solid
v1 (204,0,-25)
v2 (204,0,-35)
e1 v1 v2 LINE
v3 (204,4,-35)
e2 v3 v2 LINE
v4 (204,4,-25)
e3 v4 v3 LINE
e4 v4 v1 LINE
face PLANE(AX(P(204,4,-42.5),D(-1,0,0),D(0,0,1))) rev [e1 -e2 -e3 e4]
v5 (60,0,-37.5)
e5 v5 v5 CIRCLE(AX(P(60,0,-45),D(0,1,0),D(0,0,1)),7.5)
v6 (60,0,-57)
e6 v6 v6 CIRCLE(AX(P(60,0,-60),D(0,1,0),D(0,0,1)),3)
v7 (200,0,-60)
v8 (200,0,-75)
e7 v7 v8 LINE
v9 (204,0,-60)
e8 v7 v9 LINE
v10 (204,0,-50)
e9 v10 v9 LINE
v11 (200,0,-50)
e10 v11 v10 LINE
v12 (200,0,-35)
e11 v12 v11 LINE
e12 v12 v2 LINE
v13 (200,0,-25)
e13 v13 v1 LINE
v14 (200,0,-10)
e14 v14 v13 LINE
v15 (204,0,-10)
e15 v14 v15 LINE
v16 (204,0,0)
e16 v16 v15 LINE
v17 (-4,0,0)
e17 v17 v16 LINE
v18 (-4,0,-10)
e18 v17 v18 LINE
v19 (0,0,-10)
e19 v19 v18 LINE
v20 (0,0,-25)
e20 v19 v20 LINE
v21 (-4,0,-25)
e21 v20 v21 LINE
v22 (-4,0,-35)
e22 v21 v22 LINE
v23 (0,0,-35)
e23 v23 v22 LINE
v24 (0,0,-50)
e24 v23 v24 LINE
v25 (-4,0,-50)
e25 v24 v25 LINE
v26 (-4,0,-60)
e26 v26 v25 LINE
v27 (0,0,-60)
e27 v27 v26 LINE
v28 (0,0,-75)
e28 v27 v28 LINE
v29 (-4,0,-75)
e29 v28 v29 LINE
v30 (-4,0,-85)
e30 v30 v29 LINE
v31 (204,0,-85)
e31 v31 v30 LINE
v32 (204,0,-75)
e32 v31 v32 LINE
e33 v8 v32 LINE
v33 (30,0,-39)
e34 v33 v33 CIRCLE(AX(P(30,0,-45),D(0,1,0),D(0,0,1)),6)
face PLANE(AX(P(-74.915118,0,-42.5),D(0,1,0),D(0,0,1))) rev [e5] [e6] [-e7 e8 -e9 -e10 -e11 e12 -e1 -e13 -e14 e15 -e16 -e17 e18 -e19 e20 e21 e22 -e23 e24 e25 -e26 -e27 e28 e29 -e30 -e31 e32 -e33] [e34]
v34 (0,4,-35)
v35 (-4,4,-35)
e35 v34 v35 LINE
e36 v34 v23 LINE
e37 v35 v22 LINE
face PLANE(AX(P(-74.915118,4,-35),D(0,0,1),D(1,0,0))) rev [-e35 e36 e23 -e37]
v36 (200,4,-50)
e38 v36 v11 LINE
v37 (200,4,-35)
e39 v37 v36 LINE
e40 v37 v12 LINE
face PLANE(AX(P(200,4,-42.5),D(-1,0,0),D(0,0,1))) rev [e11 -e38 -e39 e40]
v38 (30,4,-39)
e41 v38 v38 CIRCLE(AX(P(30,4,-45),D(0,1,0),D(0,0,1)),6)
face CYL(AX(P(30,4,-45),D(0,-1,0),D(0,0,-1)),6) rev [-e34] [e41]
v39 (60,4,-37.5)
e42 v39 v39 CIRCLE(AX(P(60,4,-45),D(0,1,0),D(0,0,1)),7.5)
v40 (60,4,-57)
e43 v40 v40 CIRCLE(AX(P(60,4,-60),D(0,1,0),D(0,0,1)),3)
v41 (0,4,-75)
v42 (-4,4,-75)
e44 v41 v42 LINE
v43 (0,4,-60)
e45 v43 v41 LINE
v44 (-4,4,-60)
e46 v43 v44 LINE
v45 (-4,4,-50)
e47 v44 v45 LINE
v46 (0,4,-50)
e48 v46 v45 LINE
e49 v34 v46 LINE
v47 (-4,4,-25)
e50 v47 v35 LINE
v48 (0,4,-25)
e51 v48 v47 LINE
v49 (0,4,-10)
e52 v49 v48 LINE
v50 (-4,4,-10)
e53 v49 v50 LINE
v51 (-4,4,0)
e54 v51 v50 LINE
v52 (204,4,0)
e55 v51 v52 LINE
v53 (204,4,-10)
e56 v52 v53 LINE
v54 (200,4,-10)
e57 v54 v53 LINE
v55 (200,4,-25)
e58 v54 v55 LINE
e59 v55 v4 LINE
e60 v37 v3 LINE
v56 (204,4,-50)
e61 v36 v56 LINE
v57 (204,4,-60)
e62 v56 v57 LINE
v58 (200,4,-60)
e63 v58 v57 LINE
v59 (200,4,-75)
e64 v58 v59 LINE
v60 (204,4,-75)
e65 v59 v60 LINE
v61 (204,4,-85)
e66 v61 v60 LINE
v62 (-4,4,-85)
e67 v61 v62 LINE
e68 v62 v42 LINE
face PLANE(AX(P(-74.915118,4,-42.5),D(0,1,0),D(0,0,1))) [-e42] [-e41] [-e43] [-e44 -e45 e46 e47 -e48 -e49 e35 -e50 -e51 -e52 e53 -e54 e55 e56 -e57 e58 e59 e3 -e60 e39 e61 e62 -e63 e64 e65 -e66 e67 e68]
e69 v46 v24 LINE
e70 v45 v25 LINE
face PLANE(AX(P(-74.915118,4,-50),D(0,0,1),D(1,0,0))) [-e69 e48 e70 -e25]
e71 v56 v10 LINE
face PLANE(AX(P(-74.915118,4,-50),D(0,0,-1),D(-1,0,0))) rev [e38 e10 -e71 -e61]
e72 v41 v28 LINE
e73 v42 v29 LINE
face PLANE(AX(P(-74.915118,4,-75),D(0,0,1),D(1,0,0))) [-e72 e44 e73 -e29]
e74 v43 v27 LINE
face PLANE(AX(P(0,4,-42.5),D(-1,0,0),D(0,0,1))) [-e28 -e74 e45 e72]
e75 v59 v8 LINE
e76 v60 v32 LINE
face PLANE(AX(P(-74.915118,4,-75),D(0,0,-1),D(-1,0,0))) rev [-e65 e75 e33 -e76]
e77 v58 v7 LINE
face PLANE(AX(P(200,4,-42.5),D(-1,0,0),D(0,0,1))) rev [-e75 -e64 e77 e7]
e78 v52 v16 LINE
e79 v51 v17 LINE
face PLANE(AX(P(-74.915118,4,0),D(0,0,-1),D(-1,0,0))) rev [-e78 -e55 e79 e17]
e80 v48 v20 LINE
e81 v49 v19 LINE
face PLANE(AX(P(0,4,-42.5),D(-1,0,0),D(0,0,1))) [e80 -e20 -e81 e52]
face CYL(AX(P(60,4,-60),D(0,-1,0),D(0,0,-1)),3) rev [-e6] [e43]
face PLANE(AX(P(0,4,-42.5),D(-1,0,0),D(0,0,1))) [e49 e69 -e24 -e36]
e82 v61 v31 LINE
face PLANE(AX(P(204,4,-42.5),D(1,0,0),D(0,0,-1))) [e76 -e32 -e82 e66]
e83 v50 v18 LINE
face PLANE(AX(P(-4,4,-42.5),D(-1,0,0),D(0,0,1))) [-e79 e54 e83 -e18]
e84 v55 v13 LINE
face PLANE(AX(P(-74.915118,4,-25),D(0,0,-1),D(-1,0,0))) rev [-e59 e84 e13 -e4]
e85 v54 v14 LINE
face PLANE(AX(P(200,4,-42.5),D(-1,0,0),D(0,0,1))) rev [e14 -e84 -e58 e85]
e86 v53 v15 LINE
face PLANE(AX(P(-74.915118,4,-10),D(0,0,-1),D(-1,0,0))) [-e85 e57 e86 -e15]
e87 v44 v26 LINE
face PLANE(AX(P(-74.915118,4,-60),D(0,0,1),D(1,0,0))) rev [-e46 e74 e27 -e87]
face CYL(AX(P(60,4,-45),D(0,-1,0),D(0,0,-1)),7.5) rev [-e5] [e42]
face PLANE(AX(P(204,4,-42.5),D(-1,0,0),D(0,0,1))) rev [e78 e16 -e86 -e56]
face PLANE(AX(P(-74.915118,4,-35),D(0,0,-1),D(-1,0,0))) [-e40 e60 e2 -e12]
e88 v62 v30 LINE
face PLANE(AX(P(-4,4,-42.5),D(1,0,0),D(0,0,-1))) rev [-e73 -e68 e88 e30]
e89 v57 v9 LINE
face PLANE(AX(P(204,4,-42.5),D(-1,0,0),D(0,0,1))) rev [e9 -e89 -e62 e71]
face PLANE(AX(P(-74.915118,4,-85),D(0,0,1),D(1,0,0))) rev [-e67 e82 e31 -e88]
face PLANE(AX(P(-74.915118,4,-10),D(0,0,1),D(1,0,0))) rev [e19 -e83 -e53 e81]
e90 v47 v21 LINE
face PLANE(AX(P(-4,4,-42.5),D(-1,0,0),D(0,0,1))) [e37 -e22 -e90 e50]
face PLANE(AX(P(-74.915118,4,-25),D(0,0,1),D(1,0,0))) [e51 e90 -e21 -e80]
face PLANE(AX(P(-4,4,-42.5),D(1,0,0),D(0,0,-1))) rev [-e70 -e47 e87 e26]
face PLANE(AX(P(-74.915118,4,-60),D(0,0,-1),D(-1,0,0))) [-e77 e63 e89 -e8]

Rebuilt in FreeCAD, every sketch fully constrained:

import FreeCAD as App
import Part
import Sketcher
Q = App.Units.Quantity

doc = App.newDocument("Part")
body = doc.addObject("PartDesign::Body", "Body")

sketch1 = doc.addObject("Sketcher::SketchObject", "Sketch")
body.addObject(sketch1)
sketch1.AttachmentSupport = (doc.XZ_Plane, [""])
sketch1.MapMode = "FlatFace"
sketch1.addGeometry(Part.LineSegment(App.Vector(-4, -85, 0), App.Vector(-4, -75, 0)), False)
sketch1.addGeometry(Part.LineSegment(App.Vector(-4, -75, 0), App.Vector(0, -75, 0)), False)
sketch1.addGeometry(Part.LineSegment(App.Vector(0, -75, 0), App.Vector(0, -60, 0)), False)
sketch1.addGeometry(Part.LineSegment(App.Vector(0, -60, 0), App.Vector(-4, -60, 0)), False)
sketch1.addGeometry(Part.LineSegment(App.Vector(-4, -60, 0), App.Vector(-4, -50, 0)), False)
sketch1.addGeometry(Part.LineSegment(App.Vector(-4, -50, 0), App.Vector(0, -50, 0)), False)
sketch1.addGeometry(Part.LineSegment(App.Vector(0, -50, 0), App.Vector(0, -35, 0)), False)
sketch1.addGeometry(Part.LineSegment(App.Vector(0, -35, 0), App.Vector(-4, -35, 0)), False)
sketch1.addGeometry(Part.LineSegment(App.Vector(-4, -35, 0), App.Vector(-4, -25, 0)), False)
sketch1.addGeometry(Part.LineSegment(App.Vector(-4, -25, 0), App.Vector(0, -25, 0)), False)
sketch1.addGeometry(Part.LineSegment(App.Vector(0, -25, 0), App.Vector(0, -10, 0)), False)
sketch1.addGeometry(Part.LineSegment(App.Vector(0, -10, 0), App.Vector(-4, -10, 0)), False)
sketch1.addGeometry(Part.LineSegment(App.Vector(-4, -10, 0), App.Vector(-4, 0, 0)), False)
sketch1.addGeometry(Part.LineSegment(App.Vector(-4, 0, 0), App.Vector(204, 0, 0)), False)
sketch1.addGeometry(Part.LineSegment(App.Vector(204, 0, 0), App.Vector(204, -10, 0)), False)
sketch1.addGeometry(Part.LineSegment(App.Vector(204, -10, 0), App.Vector(200, -10, 0)), False)
sketch1.addGeometry(Part.LineSegment(App.Vector(200, -10, 0), App.Vector(200, -25, 0)), False)
sketch1.addGeometry(Part.LineSegment(App.Vector(200, -25, 0), App.Vector(204, -25, 0)), False)
sketch1.addGeometry(Part.LineSegment(App.Vector(204, -25, 0), App.Vector(204, -35, 0)), False)
sketch1.addGeometry(Part.LineSegment(App.Vector(204, -35, 0), App.Vector(200, -35, 0)), False)
sketch1.addGeometry(Part.LineSegment(App.Vector(200, -35, 0), App.Vector(200, -50, 0)), False)
sketch1.addGeometry(Part.LineSegment(App.Vector(200, -50, 0), App.Vector(204, -50, 0)), False)
sketch1.addGeometry(Part.LineSegment(App.Vector(204, -50, 0), App.Vector(204, -60, 0)), False)
sketch1.addGeometry(Part.LineSegment(App.Vector(204, -60, 0), App.Vector(200, -60, 0)), False)
sketch1.addGeometry(Part.LineSegment(App.Vector(200, -60, 0), App.Vector(200, -75, 0)), False)
sketch1.addGeometry(Part.LineSegment(App.Vector(200, -75, 0), App.Vector(204, -75, 0)), False)
sketch1.addGeometry(Part.LineSegment(App.Vector(204, -75, 0), App.Vector(204, -85, 0)), False)
sketch1.addGeometry(Part.LineSegment(App.Vector(204, -85, 0), App.Vector(-4, -85, 0)), False)
sketch1.addGeometry(Part.Circle(App.Vector(60, -60, 0), App.Vector(0, 0, 1), 3), False)
sketch1.addGeometry(Part.Circle(App.Vector(30, -45, 0), App.Vector(0, 0, 1), 6), False)
sketch1.addGeometry(Part.Circle(App.Vector(60, -45, 0), App.Vector(0, 0, 1), 7.5), False)
sketch1.addConstraint(Sketcher.Constraint("Coincident", 0, 2, 1, 1))
sketch1.addConstraint(Sketcher.Constraint("Coincident", 1, 2, 2, 1))
sketch1.addConstraint(Sketcher.Constraint("Coincident", 2, 2, 3, 1))
sketch1.addConstraint(Sketcher.Constraint("Coincident", 3, 2, 4, 1))
sketch1.addConstraint(Sketcher.Constraint("Coincident", 4, 2, 5, 1))
sketch1.addConstraint(Sketcher.Constraint("Coincident", 5, 2, 6, 1))
sketch1.addConstraint(Sketcher.Constraint("Coincident", 6, 2, 7, 1))
sketch1.addConstraint(Sketcher.Constraint("Coincident", 7, 2, 8, 1))
sketch1.addConstraint(Sketcher.Constraint("Coincident", 8, 2, 9, 1))
sketch1.addConstraint(Sketcher.Constraint("Coincident", 9, 2, 10, 1))
sketch1.addConstraint(Sketcher.Constraint("Coincident", 10, 2, 11, 1))
sketch1.addConstraint(Sketcher.Constraint("Coincident", 11, 2, 12, 1))
sketch1.addConstraint(Sketcher.Constraint("Coincident", 12, 2, 13, 1))
sketch1.addConstraint(Sketcher.Constraint("Coincident", 13, 2, 14, 1))
sketch1.addConstraint(Sketcher.Constraint("Coincident", 14, 2, 15, 1))
sketch1.addConstraint(Sketcher.Constraint("Coincident", 15, 2, 16, 1))
sketch1.addConstraint(Sketcher.Constraint("Coincident", 16, 2, 17, 1))
sketch1.addConstraint(Sketcher.Constraint("Coincident", 17, 2, 18, 1))
sketch1.addConstraint(Sketcher.Constraint("Coincident", 18, 2, 19, 1))
sketch1.addConstraint(Sketcher.Constraint("Coincident", 19, 2, 20, 1))
sketch1.addConstraint(Sketcher.Constraint("Coincident", 20, 2, 21, 1))
sketch1.addConstraint(Sketcher.Constraint("Coincident", 21, 2, 22, 1))
sketch1.addConstraint(Sketcher.Constraint("Coincident", 22, 2, 23, 1))
sketch1.addConstraint(Sketcher.Constraint("Coincident", 23, 2, 24, 1))
sketch1.addConstraint(Sketcher.Constraint("Coincident", 24, 2, 25, 1))
sketch1.addConstraint(Sketcher.Constraint("Coincident", 25, 2, 26, 1))
sketch1.addConstraint(Sketcher.Constraint("Coincident", 26, 2, 27, 1))
sketch1.addConstraint(Sketcher.Constraint("Coincident", 27, 2, 0, 1))
sketch1.addConstraint(Sketcher.Constraint("Vertical", 0))
sketch1.addConstraint(Sketcher.Constraint("Horizontal", 1))
sketch1.addConstraint(Sketcher.Constraint("Vertical", 2))
sketch1.addConstraint(Sketcher.Constraint("Horizontal", 3))
sketch1.addConstraint(Sketcher.Constraint("Vertical", 4))
sketch1.addConstraint(Sketcher.Constraint("Horizontal", 5))
sketch1.addConstraint(Sketcher.Constraint("Vertical", 6))
sketch1.addConstraint(Sketcher.Constraint("Horizontal", 7))
sketch1.addConstraint(Sketcher.Constraint("Vertical", 8))
sketch1.addConstraint(Sketcher.Constraint("Horizontal", 9))
sketch1.addConstraint(Sketcher.Constraint("Vertical", 10))
sketch1.addConstraint(Sketcher.Constraint("Horizontal", 11))
sketch1.addConstraint(Sketcher.Constraint("Vertical", 12))
sketch1.addConstraint(Sketcher.Constraint("Horizontal", 13))
sketch1.addConstraint(Sketcher.Constraint("Vertical", 14))
sketch1.addConstraint(Sketcher.Constraint("Horizontal", 15))
sketch1.addConstraint(Sketcher.Constraint("Vertical", 16))
sketch1.addConstraint(Sketcher.Constraint("Horizontal", 17))
sketch1.addConstraint(Sketcher.Constraint("Vertical", 18))
sketch1.addConstraint(Sketcher.Constraint("Horizontal", 19))
sketch1.addConstraint(Sketcher.Constraint("Vertical", 20))
sketch1.addConstraint(Sketcher.Constraint("Horizontal", 21))
sketch1.addConstraint(Sketcher.Constraint("Vertical", 22))
sketch1.addConstraint(Sketcher.Constraint("Horizontal", 23))
sketch1.addConstraint(Sketcher.Constraint("Vertical", 24))
sketch1.addConstraint(Sketcher.Constraint("Horizontal", 25))
sketch1.addConstraint(Sketcher.Constraint("Vertical", 26))
sketch1.addConstraint(Sketcher.Constraint("Horizontal", 27))
sketch1.addConstraint(Sketcher.Constraint("PointOnObject", 1, 2, -2))
sketch1.addConstraint(Sketcher.Constraint("PointOnObject", 5, 2, -2))
sketch1.addConstraint(Sketcher.Constraint("PointOnObject", 9, 2, -2))
sketch1.addConstraint(Sketcher.Constraint("PointOnObject", 12, 2, -1))
sketch1.addConstraint(Sketcher.Constraint("Horizontal", 29, 3, 30, 3))
sketch1.addConstraint(Sketcher.Constraint("Horizontal", 28, 3, 2, 2))
sketch1.addConstraint(Sketcher.Constraint("Horizontal", 11, 2, 14, 2))
sketch1.addConstraint(Sketcher.Constraint("Horizontal", 9, 2, 16, 2))
sketch1.addConstraint(Sketcher.Constraint("Horizontal", 7, 2, 18, 2))
sketch1.addConstraint(Sketcher.Constraint("Horizontal", 5, 2, 20, 2))
sketch1.addConstraint(Sketcher.Constraint("Horizontal", 3, 2, 22, 2))
sketch1.addConstraint(Sketcher.Constraint("Horizontal", 1, 2, 24, 2))
sketch1.addConstraint(Sketcher.Constraint("Vertical", 28, 3, 30, 3))
sketch1.addConstraint(Sketcher.Constraint("Vertical", 0, 2, 3, 2))
sketch1.addConstraint(Sketcher.Constraint("Vertical", 4, 2, 7, 2))
sketch1.addConstraint(Sketcher.Constraint("Vertical", 8, 2, 11, 2))
sketch1.addConstraint(Sketcher.Constraint("Vertical", 14, 2, 17, 2))
sketch1.addConstraint(Sketcher.Constraint("Vertical", 16, 2, 19, 2))
sketch1.addConstraint(Sketcher.Constraint("Vertical", 18, 2, 21, 2))
sketch1.addConstraint(Sketcher.Constraint("Vertical", 20, 2, 23, 2))
sketch1.addConstraint(Sketcher.Constraint("Vertical", 22, 2, 25, 2))
sketch1.addConstraint(Sketcher.Constraint("Equal", 11, 15))
sketch1.addConstraint(Sketcher.Constraint("Equal", 0, 4))
sketch1.addConstraint(Sketcher.Constraint("Equal", 2, 6))
sketch1.addConstraint(Sketcher.Constraint("Equal", 4, 8))
sketch1.addConstraint(Sketcher.Constraint("Equal", 6, 10))
sketch1.addConstraint(Sketcher.Constraint("Equal", 8, 12))
sketch1.addConstraint(Sketcher.Constraint("Diameter", 28, Q("6 mm")))
sketch1.addConstraint(Sketcher.Constraint("Diameter", 29, Q("12 mm")))
sketch1.addConstraint(Sketcher.Constraint("Diameter", 30, Q("15 mm")))
sketch1.addConstraint(Sketcher.Constraint("DistanceX", 1, 1, 1, 2, Q("4 mm")))
sketch1.addConstraint(Sketcher.Constraint("DistanceX", 13, 1, 13, 2, Q("208 mm")))
sketch1.addConstraint(Sketcher.Constraint("DistanceY", 0, 1, 0, 2, Q("10 mm")))
sketch1.addConstraint(Sketcher.Constraint("DistanceY", 2, 1, 2, 2, Q("15 mm")))
sketch1.addConstraint(Sketcher.Constraint("DistanceX", -1, 1, 28, 3, Q("60 mm")))
sketch1.addConstraint(Sketcher.Constraint("DistanceX", -1, 1, 29, 3, Q("30 mm")))
sketch1.addConstraint(Sketcher.Constraint("DistanceY", 29, 3, -1, 1, Q("45 mm")))
pad1 = doc.addObject("PartDesign::Pad", "Pad")
body.addObject(pad1)
pad1.Profile = sketch1
pad1.Length = 4
pad1.Reversed = True

doc.recompute()
